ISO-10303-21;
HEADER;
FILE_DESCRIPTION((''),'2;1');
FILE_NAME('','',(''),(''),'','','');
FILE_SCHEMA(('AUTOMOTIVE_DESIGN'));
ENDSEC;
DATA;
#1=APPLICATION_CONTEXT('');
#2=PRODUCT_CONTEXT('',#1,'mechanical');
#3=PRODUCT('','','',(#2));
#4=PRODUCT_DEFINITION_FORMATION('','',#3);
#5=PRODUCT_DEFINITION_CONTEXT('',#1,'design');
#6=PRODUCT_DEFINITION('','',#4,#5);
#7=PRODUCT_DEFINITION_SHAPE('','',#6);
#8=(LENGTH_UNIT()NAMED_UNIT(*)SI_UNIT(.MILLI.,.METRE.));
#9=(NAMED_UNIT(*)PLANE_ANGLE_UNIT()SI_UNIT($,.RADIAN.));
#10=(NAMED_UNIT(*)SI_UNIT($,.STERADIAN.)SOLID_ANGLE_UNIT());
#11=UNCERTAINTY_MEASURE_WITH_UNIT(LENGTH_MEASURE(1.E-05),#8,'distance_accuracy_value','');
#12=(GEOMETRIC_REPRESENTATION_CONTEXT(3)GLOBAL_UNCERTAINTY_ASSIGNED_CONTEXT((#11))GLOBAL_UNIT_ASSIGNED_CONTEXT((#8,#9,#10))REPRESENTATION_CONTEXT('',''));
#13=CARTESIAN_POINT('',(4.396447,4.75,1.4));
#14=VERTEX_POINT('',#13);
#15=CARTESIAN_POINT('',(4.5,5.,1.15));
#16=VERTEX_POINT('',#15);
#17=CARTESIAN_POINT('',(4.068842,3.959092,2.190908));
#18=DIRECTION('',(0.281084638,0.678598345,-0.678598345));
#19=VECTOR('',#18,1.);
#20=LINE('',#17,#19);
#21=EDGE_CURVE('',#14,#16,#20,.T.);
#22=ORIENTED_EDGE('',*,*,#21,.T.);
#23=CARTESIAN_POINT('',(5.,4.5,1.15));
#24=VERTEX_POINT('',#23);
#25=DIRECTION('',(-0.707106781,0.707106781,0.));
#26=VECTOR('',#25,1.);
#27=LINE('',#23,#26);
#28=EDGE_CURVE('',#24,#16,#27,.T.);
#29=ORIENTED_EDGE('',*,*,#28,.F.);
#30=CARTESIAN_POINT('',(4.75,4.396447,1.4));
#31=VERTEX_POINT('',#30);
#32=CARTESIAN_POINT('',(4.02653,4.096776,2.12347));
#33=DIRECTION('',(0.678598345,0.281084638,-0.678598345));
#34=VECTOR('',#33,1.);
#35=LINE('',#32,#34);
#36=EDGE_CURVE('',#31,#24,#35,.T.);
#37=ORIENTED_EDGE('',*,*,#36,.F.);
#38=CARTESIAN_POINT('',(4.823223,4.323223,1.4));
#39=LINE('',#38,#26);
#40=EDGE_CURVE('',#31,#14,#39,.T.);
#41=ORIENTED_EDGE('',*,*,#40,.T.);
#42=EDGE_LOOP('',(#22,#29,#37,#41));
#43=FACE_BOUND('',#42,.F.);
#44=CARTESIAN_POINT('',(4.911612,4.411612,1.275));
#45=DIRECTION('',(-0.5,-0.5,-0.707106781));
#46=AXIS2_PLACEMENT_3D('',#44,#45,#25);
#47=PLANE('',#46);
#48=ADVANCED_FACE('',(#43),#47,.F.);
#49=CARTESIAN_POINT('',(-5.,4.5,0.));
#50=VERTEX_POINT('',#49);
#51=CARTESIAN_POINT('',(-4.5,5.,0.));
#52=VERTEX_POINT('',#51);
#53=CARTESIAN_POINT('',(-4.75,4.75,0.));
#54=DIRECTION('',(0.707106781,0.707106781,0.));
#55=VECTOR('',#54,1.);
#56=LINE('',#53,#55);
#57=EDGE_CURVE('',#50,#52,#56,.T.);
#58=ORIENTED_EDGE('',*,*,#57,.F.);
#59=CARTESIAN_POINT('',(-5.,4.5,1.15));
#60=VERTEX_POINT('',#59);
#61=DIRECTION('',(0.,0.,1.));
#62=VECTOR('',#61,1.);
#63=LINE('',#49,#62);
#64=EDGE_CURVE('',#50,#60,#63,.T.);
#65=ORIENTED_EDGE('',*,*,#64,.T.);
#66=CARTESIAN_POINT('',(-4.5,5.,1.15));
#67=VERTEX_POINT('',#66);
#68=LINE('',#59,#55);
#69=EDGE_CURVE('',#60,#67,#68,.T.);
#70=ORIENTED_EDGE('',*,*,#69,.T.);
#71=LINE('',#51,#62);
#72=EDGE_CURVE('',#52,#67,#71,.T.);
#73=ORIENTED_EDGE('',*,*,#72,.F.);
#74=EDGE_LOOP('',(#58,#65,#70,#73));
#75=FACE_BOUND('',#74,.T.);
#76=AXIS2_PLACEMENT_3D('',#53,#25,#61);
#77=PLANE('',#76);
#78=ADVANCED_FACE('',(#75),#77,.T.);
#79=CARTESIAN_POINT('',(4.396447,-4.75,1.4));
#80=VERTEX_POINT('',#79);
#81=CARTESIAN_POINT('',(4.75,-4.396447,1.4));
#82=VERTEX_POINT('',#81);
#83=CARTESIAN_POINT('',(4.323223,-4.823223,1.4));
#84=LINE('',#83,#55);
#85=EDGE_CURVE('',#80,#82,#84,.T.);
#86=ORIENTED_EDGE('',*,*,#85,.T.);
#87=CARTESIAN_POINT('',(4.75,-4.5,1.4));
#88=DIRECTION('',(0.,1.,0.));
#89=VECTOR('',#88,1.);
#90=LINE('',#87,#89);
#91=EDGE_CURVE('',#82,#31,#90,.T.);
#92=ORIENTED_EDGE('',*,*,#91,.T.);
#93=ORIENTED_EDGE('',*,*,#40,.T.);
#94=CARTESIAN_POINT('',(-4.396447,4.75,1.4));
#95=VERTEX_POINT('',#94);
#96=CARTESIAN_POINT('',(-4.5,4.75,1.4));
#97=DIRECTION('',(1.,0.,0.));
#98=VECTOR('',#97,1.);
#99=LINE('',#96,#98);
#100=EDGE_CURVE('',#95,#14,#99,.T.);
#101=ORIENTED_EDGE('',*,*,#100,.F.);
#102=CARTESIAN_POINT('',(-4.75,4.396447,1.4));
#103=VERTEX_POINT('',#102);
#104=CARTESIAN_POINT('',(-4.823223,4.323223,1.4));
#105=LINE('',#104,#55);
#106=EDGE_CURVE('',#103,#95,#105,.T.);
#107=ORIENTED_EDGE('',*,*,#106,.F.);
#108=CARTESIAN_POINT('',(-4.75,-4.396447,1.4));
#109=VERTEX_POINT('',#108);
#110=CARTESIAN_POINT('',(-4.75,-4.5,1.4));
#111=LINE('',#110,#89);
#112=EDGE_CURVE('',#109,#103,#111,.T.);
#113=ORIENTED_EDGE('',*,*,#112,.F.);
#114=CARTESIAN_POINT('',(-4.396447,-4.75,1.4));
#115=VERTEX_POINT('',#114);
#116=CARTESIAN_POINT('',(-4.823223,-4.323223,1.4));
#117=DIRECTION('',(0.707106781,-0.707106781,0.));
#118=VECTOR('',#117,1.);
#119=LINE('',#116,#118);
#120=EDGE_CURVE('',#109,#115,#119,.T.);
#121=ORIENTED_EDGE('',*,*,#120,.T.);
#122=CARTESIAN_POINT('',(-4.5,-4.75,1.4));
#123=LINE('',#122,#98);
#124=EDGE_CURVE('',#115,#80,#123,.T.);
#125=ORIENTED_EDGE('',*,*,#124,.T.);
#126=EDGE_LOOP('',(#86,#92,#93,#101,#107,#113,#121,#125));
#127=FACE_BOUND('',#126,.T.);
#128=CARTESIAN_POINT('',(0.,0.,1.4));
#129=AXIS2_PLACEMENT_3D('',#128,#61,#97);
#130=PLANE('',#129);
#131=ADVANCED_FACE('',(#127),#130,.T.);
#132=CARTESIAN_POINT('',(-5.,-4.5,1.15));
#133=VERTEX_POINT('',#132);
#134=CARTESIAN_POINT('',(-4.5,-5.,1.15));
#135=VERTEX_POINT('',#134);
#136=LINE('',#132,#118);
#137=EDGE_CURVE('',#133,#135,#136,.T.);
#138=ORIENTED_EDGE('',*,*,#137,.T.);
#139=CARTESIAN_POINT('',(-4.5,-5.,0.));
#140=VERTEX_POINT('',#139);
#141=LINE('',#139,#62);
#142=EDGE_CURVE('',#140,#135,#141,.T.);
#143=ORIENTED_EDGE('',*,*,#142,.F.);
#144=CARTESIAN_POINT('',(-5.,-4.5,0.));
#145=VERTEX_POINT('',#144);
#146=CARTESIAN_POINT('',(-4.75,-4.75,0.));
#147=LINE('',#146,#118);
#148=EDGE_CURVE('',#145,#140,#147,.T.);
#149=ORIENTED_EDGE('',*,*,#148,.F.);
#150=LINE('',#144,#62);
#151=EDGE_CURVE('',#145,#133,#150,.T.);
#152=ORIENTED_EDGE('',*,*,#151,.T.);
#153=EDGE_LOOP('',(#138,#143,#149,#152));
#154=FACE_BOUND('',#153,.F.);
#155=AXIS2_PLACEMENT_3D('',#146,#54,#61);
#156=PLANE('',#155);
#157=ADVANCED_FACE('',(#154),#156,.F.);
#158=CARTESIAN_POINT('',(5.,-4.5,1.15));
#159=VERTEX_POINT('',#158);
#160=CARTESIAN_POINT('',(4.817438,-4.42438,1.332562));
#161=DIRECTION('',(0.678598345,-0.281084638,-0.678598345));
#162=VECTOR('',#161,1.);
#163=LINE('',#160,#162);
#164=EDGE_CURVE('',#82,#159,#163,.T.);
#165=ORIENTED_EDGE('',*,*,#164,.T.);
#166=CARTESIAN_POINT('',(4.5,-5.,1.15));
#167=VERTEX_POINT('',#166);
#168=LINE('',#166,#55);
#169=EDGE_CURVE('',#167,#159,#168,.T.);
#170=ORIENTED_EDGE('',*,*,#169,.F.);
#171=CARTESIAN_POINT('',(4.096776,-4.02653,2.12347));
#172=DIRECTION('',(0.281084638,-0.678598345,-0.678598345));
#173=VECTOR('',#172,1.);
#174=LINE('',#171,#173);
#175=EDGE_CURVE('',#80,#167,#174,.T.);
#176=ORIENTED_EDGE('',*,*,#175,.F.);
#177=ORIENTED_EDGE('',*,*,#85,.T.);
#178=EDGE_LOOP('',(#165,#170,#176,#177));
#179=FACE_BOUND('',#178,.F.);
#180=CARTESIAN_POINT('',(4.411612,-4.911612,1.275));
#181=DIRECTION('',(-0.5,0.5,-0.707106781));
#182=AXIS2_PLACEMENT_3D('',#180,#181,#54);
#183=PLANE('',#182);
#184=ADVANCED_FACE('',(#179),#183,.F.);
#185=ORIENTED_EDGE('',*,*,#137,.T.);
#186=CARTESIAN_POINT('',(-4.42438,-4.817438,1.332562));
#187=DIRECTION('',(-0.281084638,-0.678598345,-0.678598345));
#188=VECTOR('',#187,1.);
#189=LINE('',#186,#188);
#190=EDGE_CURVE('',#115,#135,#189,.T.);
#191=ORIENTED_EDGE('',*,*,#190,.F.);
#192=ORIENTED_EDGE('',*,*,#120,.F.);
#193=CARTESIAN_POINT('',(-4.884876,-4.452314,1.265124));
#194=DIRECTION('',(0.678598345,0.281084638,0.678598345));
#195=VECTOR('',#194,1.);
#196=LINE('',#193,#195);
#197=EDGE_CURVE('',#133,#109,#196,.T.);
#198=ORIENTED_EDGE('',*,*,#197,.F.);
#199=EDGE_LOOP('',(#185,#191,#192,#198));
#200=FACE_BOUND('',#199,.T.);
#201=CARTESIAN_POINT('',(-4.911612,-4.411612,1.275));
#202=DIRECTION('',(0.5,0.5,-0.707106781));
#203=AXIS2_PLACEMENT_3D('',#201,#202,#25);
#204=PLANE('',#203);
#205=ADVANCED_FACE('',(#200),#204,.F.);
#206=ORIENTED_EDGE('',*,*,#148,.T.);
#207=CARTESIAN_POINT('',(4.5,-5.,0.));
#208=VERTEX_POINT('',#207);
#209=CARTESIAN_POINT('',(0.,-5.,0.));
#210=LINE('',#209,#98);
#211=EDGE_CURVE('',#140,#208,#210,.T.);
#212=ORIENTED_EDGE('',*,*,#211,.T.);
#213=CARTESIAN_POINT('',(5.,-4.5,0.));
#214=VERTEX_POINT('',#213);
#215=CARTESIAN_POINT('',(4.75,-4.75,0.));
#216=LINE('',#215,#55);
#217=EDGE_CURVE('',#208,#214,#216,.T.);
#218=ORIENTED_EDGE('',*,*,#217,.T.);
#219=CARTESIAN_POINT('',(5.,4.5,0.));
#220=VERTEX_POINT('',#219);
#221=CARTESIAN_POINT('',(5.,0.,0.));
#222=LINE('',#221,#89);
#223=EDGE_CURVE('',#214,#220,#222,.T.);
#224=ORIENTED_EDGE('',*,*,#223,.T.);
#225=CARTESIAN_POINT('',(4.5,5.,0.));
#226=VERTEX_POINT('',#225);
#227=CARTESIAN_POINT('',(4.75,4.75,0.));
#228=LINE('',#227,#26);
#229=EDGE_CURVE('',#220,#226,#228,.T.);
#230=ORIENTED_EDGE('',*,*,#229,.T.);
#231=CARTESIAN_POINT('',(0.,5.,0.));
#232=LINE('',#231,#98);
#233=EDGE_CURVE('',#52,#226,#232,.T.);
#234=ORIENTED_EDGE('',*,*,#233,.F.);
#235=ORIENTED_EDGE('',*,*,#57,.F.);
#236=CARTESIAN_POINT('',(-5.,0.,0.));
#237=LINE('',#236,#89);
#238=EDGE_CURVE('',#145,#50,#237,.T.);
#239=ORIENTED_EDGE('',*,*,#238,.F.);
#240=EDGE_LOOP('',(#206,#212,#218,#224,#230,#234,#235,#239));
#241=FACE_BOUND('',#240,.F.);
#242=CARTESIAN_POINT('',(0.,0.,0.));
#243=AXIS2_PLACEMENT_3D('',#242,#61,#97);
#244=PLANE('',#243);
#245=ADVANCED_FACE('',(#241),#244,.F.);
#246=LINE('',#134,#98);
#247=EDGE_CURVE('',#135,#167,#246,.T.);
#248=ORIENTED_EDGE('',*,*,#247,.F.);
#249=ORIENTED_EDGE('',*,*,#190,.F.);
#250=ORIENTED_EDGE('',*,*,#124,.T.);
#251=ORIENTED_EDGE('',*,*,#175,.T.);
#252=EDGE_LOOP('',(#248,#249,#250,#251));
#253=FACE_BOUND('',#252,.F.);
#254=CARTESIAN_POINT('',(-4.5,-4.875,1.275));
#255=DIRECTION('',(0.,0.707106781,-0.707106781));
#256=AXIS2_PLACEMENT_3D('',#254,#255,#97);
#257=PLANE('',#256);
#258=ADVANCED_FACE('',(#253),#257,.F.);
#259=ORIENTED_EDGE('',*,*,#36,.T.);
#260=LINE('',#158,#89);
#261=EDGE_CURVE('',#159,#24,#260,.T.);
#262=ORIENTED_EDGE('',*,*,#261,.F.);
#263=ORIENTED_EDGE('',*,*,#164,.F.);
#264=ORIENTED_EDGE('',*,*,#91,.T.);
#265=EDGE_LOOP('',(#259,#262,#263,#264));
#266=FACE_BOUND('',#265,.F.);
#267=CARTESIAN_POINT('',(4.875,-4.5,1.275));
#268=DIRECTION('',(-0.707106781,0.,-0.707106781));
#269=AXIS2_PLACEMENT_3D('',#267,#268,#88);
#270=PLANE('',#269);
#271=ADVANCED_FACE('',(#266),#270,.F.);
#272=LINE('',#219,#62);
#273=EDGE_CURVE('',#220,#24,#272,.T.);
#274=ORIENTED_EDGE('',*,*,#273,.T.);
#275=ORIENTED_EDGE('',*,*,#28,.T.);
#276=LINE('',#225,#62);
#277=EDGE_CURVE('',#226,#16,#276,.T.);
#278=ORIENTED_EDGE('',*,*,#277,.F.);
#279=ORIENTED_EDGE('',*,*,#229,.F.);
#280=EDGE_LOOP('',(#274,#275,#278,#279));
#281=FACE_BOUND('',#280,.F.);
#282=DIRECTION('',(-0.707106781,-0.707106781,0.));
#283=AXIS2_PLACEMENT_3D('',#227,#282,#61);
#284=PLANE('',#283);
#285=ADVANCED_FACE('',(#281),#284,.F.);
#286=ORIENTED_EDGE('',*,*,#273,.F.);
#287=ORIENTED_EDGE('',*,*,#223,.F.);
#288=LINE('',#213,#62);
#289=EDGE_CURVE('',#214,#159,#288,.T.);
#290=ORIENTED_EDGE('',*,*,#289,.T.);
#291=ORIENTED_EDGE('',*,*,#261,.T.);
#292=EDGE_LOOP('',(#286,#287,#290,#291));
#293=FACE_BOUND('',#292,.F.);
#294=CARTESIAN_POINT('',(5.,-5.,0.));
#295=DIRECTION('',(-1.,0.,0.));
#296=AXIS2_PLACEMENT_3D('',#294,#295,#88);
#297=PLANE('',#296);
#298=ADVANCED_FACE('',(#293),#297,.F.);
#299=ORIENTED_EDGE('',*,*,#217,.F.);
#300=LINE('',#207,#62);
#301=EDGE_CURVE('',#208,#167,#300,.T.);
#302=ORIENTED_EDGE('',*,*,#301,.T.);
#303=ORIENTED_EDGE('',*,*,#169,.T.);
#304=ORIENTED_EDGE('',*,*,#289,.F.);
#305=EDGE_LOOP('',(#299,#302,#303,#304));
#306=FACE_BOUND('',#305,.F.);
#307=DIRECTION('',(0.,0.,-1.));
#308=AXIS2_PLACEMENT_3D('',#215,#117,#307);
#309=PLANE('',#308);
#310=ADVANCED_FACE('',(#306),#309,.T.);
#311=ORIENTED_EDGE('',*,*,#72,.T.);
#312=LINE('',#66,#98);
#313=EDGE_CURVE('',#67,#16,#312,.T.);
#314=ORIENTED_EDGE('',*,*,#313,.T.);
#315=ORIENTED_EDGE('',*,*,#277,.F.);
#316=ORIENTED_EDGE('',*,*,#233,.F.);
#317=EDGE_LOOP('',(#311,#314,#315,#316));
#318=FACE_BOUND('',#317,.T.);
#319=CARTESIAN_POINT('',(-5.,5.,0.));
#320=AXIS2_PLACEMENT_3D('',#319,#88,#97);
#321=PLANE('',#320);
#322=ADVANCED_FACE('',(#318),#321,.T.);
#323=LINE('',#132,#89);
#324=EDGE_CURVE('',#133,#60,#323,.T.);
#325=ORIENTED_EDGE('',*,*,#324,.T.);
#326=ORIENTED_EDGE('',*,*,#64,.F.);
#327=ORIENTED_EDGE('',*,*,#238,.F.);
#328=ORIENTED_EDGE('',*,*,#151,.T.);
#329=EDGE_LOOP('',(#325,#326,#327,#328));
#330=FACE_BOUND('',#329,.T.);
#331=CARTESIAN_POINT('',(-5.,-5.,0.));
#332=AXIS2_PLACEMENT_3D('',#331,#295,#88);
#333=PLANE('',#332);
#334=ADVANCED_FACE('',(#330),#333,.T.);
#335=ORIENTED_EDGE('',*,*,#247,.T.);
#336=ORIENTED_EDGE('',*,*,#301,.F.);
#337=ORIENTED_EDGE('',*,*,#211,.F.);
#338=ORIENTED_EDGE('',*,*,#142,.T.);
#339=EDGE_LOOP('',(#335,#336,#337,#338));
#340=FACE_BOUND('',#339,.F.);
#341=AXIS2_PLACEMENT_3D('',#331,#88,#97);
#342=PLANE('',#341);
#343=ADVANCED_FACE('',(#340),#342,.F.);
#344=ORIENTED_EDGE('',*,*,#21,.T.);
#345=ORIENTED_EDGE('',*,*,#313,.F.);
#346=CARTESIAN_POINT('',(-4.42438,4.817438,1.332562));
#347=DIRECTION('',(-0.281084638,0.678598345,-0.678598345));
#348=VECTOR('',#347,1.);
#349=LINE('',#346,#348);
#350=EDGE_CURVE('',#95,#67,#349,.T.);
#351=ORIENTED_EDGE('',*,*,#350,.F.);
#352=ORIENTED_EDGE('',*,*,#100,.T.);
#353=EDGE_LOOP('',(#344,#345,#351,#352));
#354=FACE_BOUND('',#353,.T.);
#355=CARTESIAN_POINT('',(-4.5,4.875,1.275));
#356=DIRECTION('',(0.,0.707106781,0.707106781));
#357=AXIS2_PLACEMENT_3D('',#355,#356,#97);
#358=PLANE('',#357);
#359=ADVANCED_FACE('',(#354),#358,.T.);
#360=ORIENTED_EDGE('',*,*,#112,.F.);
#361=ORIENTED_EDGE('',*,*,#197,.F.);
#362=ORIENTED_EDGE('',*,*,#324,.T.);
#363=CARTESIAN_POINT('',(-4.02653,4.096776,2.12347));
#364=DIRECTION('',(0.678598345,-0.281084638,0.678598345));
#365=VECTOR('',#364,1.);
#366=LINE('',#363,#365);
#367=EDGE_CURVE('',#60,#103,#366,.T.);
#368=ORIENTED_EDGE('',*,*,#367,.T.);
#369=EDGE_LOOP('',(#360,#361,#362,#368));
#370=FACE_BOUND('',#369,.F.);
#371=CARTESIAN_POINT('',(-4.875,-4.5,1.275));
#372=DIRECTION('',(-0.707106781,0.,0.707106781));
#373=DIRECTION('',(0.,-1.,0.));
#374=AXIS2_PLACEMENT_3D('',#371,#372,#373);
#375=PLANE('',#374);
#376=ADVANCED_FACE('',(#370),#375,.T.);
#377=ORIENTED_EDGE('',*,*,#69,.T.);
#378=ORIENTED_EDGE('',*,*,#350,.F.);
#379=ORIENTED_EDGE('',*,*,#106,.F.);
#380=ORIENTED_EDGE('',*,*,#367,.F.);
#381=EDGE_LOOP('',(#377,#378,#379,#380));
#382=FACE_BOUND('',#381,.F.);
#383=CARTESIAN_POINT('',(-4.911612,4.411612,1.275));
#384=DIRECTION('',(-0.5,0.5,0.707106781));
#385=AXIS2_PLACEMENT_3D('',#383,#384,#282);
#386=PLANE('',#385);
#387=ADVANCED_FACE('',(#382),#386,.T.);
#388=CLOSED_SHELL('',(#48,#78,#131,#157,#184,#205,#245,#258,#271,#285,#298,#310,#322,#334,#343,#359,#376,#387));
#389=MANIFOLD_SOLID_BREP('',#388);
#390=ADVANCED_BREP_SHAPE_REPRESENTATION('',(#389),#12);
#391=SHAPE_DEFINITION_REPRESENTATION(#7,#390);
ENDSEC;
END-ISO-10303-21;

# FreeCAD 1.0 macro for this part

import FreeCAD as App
import Part
import Sketcher

V = App.Vector


def edges_at(feature, points):
    """Names of the edges that pass closest to the given points."""
    edges = feature.Shape.Edges
    near = lambda p: min(range(len(edges)), key=lambda i: edges[i].distToShape(Part.Vertex(*p))[0])
    return sorted({f"Edge{near(p) + 1}" for p in points})


def add_polygon(sketch, points):
    """Adds a closed chain of lines whose ends are joined by coincident constraints."""
    first, n = sketch.GeometryCount, len(points)
    for a, b in zip(points, points[1:] + points[:1]):
        sketch.addGeometry(Part.LineSegment(App.Vector(*a, 0), App.Vector(*b, 0)), False)
    for i in range(n):
        sketch.addConstraint(Sketcher.Constraint("Coincident", first + i, 2, first + (i + 1) % n, 1))

doc = App.newDocument("Part")
params = doc.addObject("Spreadsheet::Sheet", "Params")
for row, (alias, value) in enumerate([
    ("sketch1_width", "10 mm"),
    ("pad1_length", "1.4 mm"),
    ("chamfer_size", "0.5 mm"),
    ("chamfer2_size", "0.25 mm"),
], start=1):
    params.set(f"A{row}", alias)
    params.set(f"B{row}", "=" + value)
    params.setAlias(f"B{row}", alias)

body = doc.addObject("PartDesign::Body", "Body")

# Sketch on XY plane
sketch1 = body.newObject("Sketcher::SketchObject", "Sketch")
sketch1.AttachmentSupport = (doc.getObject("XY_Plane"), [""])
sketch1.MapMode = "FlatFace"
add_polygon(sketch1, [(-5, 5), (-5, -5), (5, -5), (5, 5)])  # lines 0-3
sketch1.addConstraint([
    Sketcher.Constraint("Vertical", 0),
    Sketcher.Constraint("Horizontal", 1),
    Sketcher.Constraint("Vertical", 2),
    Sketcher.Constraint("Horizontal", 3),
    Sketcher.Constraint("Symmetric", 0, 2, 2, 2, -1, 1),
    Sketcher.Constraint("Equal", 3, 0),
    Sketcher.Constraint("DistanceX", 1, 1, 1, 2, 10.0),
])
sketch1.setExpression("Constraints[10]", "Params.sketch1_width")
pad1 = body.newObject("PartDesign::Pad", "Pad")
pad1.Profile = sketch1
pad1.setExpression("Length", "Params.pad1_length")
doc.recompute()

chamfer = body.newObject("PartDesign::Chamfer", "Chamfer")
chamfer.Base = (pad1, edges_at(pad1, [
    (5, 5, 0.7),
    (-5, 5, 0.7),
    (5, -5, 0.7),
    (-5, -5, 0.7),
]))
chamfer.setExpression("Size", "Params.chamfer_size")
doc.recompute()

chamfer2 = body.newObject("PartDesign::Chamfer", "Chamfer001")
chamfer2.Base = (chamfer, edges_at(chamfer, [
    (0, 5, 1.4),
    (-5, 0, 1.4),
    (-4.75, 4.75, 1.4),
    (0, -5, 1.4),
    (-4.75, -4.75, 1.4),
    (4.75, -4.75, 1.4),
    (5, 0, 1.4),
    (4.75, 4.75, 1.4),
]))
chamfer2.setExpression("Size", "Params.chamfer2_size")

doc.recompute()
